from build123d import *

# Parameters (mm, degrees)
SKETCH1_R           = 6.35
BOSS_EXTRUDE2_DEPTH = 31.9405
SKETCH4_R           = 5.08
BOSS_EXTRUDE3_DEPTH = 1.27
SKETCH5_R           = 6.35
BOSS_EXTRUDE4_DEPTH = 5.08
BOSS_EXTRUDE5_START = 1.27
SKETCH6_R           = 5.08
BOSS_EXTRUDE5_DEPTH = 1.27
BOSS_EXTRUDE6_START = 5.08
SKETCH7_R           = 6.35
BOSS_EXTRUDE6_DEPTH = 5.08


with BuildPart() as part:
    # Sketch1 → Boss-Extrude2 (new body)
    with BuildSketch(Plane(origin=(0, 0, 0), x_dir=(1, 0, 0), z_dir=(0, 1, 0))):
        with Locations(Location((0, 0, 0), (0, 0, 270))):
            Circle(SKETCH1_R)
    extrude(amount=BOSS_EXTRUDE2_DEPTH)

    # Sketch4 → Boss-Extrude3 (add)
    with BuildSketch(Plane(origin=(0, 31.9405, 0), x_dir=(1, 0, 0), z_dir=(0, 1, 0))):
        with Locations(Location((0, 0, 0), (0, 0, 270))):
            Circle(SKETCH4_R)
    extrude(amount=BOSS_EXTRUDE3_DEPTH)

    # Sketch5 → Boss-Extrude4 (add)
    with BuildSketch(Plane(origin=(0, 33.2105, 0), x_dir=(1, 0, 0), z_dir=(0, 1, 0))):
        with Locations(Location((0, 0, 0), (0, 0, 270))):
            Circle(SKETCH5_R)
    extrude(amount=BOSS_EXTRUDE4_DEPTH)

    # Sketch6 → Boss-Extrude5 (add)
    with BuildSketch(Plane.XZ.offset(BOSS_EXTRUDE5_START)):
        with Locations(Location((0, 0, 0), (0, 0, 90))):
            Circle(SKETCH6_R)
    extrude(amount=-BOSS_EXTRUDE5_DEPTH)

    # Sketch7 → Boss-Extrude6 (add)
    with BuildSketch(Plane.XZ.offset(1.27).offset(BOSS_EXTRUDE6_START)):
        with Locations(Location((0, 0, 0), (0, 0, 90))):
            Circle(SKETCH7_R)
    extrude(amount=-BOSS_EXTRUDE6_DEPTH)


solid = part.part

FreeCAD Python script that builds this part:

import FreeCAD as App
import Part
import Sketcher
from FreeCAD import Vector
Q = App.Units.Quantity

doc = App.newDocument("Part")
body = doc.addObject("PartDesign::Body", "Body")

sketch1 = body.newObject("Sketcher::SketchObject", "Sketch")
sketch1.AttachmentSupport = (doc.getObject("XZ_Plane"), [""])
sketch1.MapMode = "FlatFace"
sketch1.addGeometry(Part.Circle(Vector(0, 0, 0), Vector(0, 0, 1), 6), False)
sketch1.addConstraint(Sketcher.Constraint("Coincident", 0, 3, -1, 1))
sketch1.addConstraint(Sketcher.Constraint("Diameter", 0, Q("0.5 in")))
pad1 = body.newObject("PartDesign::Pad", "Pad")
pad1.Profile = sketch1
pad1.Length = Q("1.2575 in")
pad1.Reversed = True

sketch2 = body.newObject("Sketcher::SketchObject", "Sketch001")
sketch2.AttachmentSupport = (doc.getObject("XZ_Plane"), [""])
sketch2.MapMode = "FlatFace"
sketch2.AttachmentOffset = App.Placement(Vector(0, 0, -1.2575 * 25.4), App.Rotation())
sketch2.addGeometry(Part.Circle(Vector(0, 0, 0), Vector(0, 0, 1), 5), False)
sketch2.addConstraint(Sketcher.Constraint("Coincident", 0, 3, -1, 1))
sketch2.addConstraint(Sketcher.Constraint("Diameter", 0, Q("0.4 in")))
pad2 = body.newObject("PartDesign::Pad", "Pad001")
pad2.Profile = sketch2
pad2.Length = Q("0.05 in")
pad2.Reversed = True

sketch3 = body.newObject("Sketcher::SketchObject", "Sketch002")
sketch3.AttachmentSupport = (doc.getObject("XZ_Plane"), [""])
sketch3.MapMode = "FlatFace"
sketch3.AttachmentOffset = App.Placement(Vector(0, 0, -1.3075 * 25.4), App.Rotation())
sketch3.addGeometry(Part.Circle(Vector(0, 0, 0), Vector(0, 0, 1), 6), False)
sketch3.addConstraint(Sketcher.Constraint("Coincident", 0, 3, -1, 1))
sketch3.addConstraint(Sketcher.Constraint("Diameter", 0, Q("0.5 in")))
pad3 = body.newObject("PartDesign::Pad", "Pad002")
pad3.Profile = sketch3
pad3.Length = Q("0.2 in")
pad3.Reversed = True

sketch4 = body.newObject("Sketcher::SketchObject", "Sketch003")
sketch4.AttachmentSupport = (doc.getObject("XZ_Plane"), [""])
sketch4.MapMode = "FlatFace"
sketch4.AttachmentOffset = App.Placement(Vector(0, 0, 0.05 * 25.4), App.Rotation())
sketch4.addGeometry(Part.Circle(Vector(0, 0, 0), Vector(0, 0, 1), 5), False)
sketch4.addConstraint(Sketcher.Constraint("Coincident", 0, 3, -1, 1))
sketch4.addConstraint(Sketcher.Constraint("Diameter", 0, Q("0.4 in")))
pad4 = body.newObject("PartDesign::Pad", "Pad003")
pad4.Profile = sketch4
pad4.Length = Q("0.05 in")
pad4.Reversed = True

sketch5 = body.newObject("Sketcher::SketchObject", "Sketch004")
sketch5.AttachmentSupport = (doc.getObject("XZ_Plane"), [""])
sketch5.MapMode = "FlatFace"
sketch5.AttachmentOffset = App.Placement(Vector(0, 0, 0.25 * 25.4), App.Rotation())
sketch5.addGeometry(Part.Circle(Vector(0, 0, 0), Vector(0, 0, 1), 6), False)
sketch5.addConstraint(Sketcher.Constraint("Coincident", 0, 3, -1, 1))
sketch5.addConstraint(Sketcher.Constraint("Diameter", 0, Q("0.5 in")))
pad5 = body.newObject("PartDesign::Pad", "Pad004")
pad5.Profile = sketch5
pad5.Length = Q("0.2 in")
pad5.Reversed = True

doc.recompute()
